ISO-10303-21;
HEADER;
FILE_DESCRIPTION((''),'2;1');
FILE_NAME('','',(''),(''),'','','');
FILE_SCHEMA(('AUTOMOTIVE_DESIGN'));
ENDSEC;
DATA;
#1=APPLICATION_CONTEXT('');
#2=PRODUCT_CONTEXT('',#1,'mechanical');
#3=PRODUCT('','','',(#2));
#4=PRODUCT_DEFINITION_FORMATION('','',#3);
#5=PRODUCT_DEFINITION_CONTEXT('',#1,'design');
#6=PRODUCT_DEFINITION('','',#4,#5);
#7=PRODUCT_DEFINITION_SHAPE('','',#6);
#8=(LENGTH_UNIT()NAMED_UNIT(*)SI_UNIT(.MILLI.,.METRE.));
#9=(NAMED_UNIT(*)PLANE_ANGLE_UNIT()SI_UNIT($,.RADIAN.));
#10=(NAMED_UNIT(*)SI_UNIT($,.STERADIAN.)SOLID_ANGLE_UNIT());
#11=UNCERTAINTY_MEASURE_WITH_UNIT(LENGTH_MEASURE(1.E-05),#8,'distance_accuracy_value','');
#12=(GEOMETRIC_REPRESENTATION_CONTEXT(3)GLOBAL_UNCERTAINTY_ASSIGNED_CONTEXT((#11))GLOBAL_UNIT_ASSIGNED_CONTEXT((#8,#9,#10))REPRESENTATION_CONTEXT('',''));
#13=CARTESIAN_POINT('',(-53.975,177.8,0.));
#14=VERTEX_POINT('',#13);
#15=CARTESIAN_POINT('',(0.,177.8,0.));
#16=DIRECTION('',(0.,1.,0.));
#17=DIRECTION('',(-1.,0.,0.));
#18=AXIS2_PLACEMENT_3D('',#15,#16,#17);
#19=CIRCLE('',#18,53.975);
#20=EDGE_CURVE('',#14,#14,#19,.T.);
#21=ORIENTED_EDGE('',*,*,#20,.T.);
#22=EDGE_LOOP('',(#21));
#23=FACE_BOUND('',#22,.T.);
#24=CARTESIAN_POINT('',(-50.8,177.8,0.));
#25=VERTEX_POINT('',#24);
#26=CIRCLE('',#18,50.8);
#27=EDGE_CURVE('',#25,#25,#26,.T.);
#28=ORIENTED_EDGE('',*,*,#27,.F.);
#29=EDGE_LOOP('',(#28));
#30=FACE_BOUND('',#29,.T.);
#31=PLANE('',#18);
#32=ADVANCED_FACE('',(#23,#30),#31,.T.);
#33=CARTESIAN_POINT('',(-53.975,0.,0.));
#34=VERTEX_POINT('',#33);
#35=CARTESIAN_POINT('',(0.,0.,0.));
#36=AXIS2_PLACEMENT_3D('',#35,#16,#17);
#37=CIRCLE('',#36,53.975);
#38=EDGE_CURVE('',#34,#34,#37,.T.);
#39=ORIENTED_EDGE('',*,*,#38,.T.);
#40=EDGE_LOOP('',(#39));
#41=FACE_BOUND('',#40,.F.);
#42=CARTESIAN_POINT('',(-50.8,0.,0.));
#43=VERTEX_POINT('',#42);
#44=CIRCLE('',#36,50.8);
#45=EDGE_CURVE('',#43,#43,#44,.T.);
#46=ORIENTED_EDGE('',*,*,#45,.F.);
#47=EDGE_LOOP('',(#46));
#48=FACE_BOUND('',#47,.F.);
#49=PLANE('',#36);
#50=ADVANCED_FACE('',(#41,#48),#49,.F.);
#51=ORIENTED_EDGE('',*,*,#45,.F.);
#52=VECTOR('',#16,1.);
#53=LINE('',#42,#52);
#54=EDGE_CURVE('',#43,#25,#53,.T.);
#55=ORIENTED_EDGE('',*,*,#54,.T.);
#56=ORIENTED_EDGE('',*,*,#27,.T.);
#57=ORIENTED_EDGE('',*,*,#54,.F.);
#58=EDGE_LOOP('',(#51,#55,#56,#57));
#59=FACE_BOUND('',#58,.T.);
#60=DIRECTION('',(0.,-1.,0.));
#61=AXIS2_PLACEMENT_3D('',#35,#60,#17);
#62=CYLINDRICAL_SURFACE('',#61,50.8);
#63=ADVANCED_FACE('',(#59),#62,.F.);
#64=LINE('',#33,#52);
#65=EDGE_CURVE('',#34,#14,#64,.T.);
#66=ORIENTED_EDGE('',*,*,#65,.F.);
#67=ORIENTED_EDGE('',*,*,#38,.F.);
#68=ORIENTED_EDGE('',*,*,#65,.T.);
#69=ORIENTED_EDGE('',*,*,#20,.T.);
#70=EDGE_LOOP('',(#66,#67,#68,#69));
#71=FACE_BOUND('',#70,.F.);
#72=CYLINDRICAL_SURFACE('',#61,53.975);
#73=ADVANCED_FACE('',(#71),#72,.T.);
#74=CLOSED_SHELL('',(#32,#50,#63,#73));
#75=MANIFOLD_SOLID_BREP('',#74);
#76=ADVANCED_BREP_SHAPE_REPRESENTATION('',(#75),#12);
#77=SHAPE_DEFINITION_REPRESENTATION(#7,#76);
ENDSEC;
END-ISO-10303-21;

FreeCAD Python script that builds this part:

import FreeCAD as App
import Part
import Sketcher
Q = App.Units.Quantity

doc = App.newDocument("Part")
body = doc.addObject("PartDesign::Body", "Body")

# Sketch on XZ plane
sketch1 = doc.addObject("Sketcher::SketchObject", "Sketch")
body.addObject(sketch1)
sketch1.AttachmentSupport = (doc.XZ_Plane, [""])
sketch1.MapMode = "FlatFace"
sketch1.addGeometry([
    Part.Circle(App.Vector(0, 0, 0), App.Vector(0, 0, 1), 54),
    Part.Circle(App.Vector(0, 0, 0), App.Vector(0, 0, 1), 51),
], False)
sketch1.addConstraint([
    Sketcher.Constraint("Coincident", 0, 3, -1, 1),
    Sketcher.Constraint("Coincident", 1, 3, -1, 1),
    Sketcher.Constraint("Diameter", 1, Q("4 in")),
    Sketcher.Constraint("Diameter", 0, Q("4.25 in")),
])
pad1 = doc.addObject("PartDesign::Pad", "Pad")
body.addObject(pad1)
pad1.Profile = sketch1
pad1.Length = Q("7 in")
pad1.Reversed = True

doc.recompute()
